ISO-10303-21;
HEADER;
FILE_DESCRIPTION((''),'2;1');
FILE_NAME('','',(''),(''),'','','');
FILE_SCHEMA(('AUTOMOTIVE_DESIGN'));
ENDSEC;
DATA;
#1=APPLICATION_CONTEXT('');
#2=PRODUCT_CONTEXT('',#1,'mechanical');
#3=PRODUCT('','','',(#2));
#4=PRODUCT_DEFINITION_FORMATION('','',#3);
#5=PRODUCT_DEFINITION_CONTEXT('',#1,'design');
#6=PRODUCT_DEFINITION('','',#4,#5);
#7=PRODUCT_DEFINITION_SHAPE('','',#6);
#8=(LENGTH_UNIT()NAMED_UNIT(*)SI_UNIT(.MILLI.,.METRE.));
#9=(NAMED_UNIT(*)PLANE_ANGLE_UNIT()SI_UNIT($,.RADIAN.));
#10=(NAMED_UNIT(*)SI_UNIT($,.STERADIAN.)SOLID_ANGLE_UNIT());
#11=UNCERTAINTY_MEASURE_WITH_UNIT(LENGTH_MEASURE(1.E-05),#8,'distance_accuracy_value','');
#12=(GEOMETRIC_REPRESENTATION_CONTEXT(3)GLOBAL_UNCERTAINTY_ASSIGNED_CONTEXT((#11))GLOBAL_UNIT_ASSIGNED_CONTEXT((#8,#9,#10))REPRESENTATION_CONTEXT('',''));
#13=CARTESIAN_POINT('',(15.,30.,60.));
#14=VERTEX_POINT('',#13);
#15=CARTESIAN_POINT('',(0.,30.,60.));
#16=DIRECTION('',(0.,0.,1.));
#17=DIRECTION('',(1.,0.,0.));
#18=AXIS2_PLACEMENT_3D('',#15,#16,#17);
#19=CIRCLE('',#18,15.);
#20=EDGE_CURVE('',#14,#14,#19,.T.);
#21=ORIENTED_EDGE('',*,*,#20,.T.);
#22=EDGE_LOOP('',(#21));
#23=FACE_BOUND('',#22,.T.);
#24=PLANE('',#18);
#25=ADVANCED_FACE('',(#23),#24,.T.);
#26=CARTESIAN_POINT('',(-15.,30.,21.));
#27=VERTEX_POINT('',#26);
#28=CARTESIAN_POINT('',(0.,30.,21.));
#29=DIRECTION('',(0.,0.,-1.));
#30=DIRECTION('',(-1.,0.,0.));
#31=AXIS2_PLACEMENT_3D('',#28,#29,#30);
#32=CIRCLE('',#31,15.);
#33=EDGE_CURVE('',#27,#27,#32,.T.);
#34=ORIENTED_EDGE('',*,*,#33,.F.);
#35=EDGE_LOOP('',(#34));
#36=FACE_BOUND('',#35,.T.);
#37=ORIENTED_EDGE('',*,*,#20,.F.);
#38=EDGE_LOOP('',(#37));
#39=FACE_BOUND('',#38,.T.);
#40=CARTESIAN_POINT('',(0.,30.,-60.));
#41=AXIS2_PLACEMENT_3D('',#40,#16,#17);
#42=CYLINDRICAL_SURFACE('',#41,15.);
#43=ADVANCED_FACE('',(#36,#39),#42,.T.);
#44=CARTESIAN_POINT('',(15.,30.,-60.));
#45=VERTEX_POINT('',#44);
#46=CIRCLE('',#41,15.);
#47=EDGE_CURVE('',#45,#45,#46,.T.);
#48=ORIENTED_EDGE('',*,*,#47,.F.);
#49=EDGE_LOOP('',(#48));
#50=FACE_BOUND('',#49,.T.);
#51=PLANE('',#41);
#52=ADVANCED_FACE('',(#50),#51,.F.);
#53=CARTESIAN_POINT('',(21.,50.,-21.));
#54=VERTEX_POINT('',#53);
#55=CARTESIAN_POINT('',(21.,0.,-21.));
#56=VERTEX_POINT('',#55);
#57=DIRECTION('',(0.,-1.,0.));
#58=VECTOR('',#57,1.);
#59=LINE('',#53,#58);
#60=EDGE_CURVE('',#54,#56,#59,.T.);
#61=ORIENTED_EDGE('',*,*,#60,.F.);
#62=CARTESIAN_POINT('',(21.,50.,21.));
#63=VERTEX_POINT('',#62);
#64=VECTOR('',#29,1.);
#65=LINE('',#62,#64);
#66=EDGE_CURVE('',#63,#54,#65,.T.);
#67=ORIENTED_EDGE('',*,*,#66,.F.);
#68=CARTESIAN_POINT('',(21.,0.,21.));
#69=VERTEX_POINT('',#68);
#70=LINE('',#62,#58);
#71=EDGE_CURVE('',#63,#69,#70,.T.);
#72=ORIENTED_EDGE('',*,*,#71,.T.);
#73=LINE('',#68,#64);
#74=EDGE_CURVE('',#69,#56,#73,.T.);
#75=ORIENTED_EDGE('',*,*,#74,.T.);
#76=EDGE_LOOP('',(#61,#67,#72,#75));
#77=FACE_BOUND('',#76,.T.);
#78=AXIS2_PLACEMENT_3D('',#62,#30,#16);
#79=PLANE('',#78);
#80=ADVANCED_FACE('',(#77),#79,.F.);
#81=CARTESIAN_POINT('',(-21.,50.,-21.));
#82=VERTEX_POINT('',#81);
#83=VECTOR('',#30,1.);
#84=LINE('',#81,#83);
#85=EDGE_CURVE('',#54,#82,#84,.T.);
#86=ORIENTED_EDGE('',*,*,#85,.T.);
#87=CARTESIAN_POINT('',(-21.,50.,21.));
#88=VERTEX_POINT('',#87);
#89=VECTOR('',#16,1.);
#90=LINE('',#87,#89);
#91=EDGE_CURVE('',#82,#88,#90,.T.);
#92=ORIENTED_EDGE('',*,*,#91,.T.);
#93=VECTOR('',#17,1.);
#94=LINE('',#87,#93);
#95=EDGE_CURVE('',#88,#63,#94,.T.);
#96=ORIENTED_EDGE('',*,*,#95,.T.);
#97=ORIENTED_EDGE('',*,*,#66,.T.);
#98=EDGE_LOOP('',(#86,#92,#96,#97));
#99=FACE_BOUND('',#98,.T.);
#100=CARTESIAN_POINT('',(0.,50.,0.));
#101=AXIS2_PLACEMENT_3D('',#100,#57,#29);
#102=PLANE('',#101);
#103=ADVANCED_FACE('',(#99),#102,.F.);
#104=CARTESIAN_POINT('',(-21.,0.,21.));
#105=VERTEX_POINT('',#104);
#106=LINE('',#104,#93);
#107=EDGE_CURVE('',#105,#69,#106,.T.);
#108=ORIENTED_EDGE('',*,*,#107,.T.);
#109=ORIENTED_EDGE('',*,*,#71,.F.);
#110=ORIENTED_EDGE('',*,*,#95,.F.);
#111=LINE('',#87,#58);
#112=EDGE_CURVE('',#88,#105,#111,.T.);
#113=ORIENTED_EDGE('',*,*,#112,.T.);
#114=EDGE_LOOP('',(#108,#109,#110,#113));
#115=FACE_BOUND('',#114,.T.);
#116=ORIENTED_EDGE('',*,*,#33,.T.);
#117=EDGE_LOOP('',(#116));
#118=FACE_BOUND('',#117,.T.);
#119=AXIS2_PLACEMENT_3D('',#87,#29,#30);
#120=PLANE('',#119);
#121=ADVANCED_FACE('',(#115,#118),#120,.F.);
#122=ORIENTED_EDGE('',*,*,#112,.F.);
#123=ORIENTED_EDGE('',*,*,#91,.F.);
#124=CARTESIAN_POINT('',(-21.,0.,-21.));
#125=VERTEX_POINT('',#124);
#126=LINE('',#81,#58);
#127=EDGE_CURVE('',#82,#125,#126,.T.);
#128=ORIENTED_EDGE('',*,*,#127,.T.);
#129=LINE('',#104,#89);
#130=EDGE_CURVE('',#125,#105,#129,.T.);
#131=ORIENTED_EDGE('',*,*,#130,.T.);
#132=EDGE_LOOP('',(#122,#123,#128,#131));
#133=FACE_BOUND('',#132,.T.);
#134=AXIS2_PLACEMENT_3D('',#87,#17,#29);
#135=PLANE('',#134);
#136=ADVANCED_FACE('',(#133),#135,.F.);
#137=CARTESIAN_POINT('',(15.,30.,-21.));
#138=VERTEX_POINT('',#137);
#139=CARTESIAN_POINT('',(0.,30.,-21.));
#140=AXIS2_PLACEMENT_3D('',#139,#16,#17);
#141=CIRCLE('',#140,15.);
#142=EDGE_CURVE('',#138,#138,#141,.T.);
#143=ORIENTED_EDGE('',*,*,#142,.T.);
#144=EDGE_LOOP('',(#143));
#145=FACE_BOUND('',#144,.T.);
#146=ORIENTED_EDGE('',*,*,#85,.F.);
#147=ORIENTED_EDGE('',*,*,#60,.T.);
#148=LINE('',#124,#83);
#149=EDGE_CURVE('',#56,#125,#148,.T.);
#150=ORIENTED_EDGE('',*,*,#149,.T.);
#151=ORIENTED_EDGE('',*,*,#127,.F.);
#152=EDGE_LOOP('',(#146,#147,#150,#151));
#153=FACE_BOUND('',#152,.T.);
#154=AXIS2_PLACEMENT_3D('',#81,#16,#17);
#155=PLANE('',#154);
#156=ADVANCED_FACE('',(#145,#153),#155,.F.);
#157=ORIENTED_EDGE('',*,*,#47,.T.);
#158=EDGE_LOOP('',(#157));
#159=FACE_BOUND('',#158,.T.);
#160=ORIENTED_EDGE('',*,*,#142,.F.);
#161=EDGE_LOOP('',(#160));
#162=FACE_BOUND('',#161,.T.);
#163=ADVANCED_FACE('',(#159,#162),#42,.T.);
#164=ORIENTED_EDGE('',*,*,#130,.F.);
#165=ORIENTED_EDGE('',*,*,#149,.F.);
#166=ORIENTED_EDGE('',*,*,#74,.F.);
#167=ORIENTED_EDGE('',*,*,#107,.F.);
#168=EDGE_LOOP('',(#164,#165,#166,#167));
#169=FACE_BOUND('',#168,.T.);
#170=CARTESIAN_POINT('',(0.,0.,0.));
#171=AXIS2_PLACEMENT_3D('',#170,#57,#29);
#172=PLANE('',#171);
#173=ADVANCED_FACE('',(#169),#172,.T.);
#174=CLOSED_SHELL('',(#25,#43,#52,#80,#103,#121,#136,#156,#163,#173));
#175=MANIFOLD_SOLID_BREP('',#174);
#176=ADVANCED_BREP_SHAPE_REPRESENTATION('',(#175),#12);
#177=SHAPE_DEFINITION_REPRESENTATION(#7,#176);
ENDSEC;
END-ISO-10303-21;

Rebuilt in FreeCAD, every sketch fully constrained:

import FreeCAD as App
import Part
import Sketcher
Q = App.Units.Quantity

doc = App.newDocument("Part")
body = doc.addObject("PartDesign::Body", "Body")

# Sketch on XZ plane
sketch1 = body.newObject("Sketcher::SketchObject", "Sketch")
sketch1.AttachmentSupport = (doc.getObject("XZ_Plane"), [""])
sketch1.MapMode = "FlatFace"
sketch1.addGeometry(Part.LineSegment(App.Vector(-21, -21, 0), App.Vector(-21, 21, 0)), False)
sketch1.addGeometry(Part.LineSegment(App.Vector(-21, 21, 0), App.Vector(21, 21, 0)), False)
sketch1.addGeometry(Part.LineSegment(App.Vector(21, 21, 0), App.Vector(21, -21, 0)), False)
sketch1.addGeometry(Part.LineSegment(App.Vector(21, -21, 0), App.Vector(-21, -21, 0)), False)
sketch1.addConstraint(Sketcher.Constraint("Coincident", 0, 2, 1, 1))
sketch1.addConstraint(Sketcher.Constraint("Coincident", 1, 2, 2, 1))
sketch1.addConstraint(Sketcher.Constraint("Coincident", 2, 2, 3, 1))
sketch1.addConstraint(Sketcher.Constraint("Coincident", 3, 2, 0, 1))
sketch1.addConstraint(Sketcher.Constraint("Vertical", 0))
sketch1.addConstraint(Sketcher.Constraint("Horizontal", 1))
sketch1.addConstraint(Sketcher.Constraint("Vertical", 2))
sketch1.addConstraint(Sketcher.Constraint("Horizontal", 3))
sketch1.addConstraint(Sketcher.Constraint("Symmetric", 0, 2, 2, 2, -1, 1))
sketch1.addConstraint(Sketcher.Constraint("Equal", 3, 0))
sketch1.addConstraint(Sketcher.Constraint("DistanceX", 1, 1, 1, 2, Q("42 mm")))
pad1 = body.newObject("PartDesign::Pad", "Pad")
pad1.Profile = sketch1
pad1.Length = 50
pad1.Reversed = True

# Sketch on XY plane
sketch2 = body.newObject("Sketcher::SketchObject", "Sketch001")
sketch2.AttachmentSupport = (doc.getObject("XY_Plane"), [""])
sketch2.MapMode = "FlatFace"
sketch2.addGeometry(Part.Circle(App.Vector(0, 30, 0), App.Vector(0, 0, 1), 15), False)
sketch2.addConstraint(Sketcher.Constraint("PointOnObject", 0, 3, -2))
sketch2.addConstraint(Sketcher.Constraint("Diameter", 0, Q("30 mm")))
sketch2.addConstraint(Sketcher.Constraint("DistanceY", -1, 1, 0, 3, Q("30 mm")))
pad2 = body.newObject("PartDesign::Pad", "Pad001")
pad2.Profile = sketch2
pad2.Type = "TwoLengths"
pad2.Length = 60
pad2.Length2 = 60

doc.recompute()
